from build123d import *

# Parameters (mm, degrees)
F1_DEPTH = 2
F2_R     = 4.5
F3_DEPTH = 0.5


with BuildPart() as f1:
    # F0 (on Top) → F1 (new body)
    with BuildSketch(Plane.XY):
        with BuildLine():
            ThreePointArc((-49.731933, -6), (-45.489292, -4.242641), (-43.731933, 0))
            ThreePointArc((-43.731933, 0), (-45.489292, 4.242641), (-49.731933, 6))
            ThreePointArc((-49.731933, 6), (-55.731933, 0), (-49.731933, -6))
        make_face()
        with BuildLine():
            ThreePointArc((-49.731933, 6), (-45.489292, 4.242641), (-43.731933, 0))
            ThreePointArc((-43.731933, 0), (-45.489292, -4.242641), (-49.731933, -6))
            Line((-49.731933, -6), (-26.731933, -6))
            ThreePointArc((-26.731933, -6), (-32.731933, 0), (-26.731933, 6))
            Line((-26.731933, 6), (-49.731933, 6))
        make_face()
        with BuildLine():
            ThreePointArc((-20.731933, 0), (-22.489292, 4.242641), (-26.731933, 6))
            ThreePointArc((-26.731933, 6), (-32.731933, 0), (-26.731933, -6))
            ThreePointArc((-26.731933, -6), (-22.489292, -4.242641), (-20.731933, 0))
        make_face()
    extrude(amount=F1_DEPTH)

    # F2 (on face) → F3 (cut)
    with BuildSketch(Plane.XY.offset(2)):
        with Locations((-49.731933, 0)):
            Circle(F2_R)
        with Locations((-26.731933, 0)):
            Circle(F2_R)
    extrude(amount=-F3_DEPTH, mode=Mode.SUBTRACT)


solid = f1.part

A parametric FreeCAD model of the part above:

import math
import FreeCAD as App
import Part
import Sketcher
from FreeCAD import Vector

doc = App.newDocument("Part")
params = doc.addObject("Spreadsheet::Sheet", "Params")
for row, (alias, value) in enumerate([
    ("sketch1_radius", "6 mm"),
    ("sketch1_width", "23 mm"),
    ("pad1_length", "2 mm"),
    ("sketch2_diameter", "9 mm"),
    ("pocket1_length", "0.5 mm"),
], start=1):
    params.set(f"A{row}", alias)
    params.set(f"B{row}", "=" + value)
    params.setAlias(f"B{row}", alias)

body = doc.addObject("PartDesign::Body", "Body")

# Sketch on XY plane
sketch1 = body.newObject("Sketcher::SketchObject", "Sketch")
sketch1.AttachmentSupport = (doc.getObject("XY_Plane"), [""])
sketch1.MapMode = "FlatFace"
sketch1.addGeometry(Part.ArcOfCircle(Part.Circle(Vector(-49.731933, 0, 0), Vector(0, 0, 1), 6), math.radians(90), math.radians(270)), False)
sketch1.addGeometry(Part.LineSegment(Vector(-49.731933, -6, 0), Vector(-26.731933, -6, 0)), False)
sketch1.addGeometry(Part.ArcOfCircle(Part.Circle(Vector(-26.731932, -0.000001, 0), Vector(0, 0, 1), 5.999999), math.radians(-90.00001), math.radians(0.00001)), False)
sketch1.addGeometry(Part.ArcOfCircle(Part.Circle(Vector(-26.731932, 0.000001, 0), Vector(0, 0, 1), 5.999999), math.radians(-0.00001), math.radians(90.00001)), False)
sketch1.addGeometry(Part.LineSegment(Vector(-26.731933, 6, 0), Vector(-49.731933, 6, 0)), False)
sketch1.addConstraint(Sketcher.Constraint("Tangent", 0, 2, 1, 1))
sketch1.addConstraint(Sketcher.Constraint("Tangent", 1, 2, 2, 1))
sketch1.addConstraint(Sketcher.Constraint("Tangent", 2, 2, 3, 1))
sketch1.addConstraint(Sketcher.Constraint("Tangent", 3, 2, 4, 1))
sketch1.addConstraint(Sketcher.Constraint("Tangent", 4, 2, 0, 1))
sketch1.addConstraint(Sketcher.Constraint("Horizontal", 1))
sketch1.addConstraint(Sketcher.Constraint("Horizontal", 4))
sketch1.addConstraint(Sketcher.Constraint("Equal", 0, 2))
sketch1.addConstraint(Sketcher.Constraint("PointOnObject", 0, 3, -1))
sketch1.addConstraint(Sketcher.Constraint("PointOnObject", 2, 2, -1))
sketch1.addConstraint(Sketcher.Constraint("Radius", 0, 6.0))
sketch1.addConstraint(Sketcher.Constraint("DistanceX", 1, 1, 1, 2, 23.0))
sketch1.addConstraint(Sketcher.Constraint("DistanceX", 2, 3, -1, 1, 26.731932))
sketch1.setExpression("Constraints[10]", "Params.sketch1_radius")
sketch1.setExpression("Constraints[11]", "Params.sketch1_width")
pad1 = body.newObject("PartDesign::Pad", "Pad")
pad1.Profile = sketch1
pad1.setExpression("Length", "Params.pad1_length")

# Sketch on XY plane
sketch2 = body.newObject("Sketcher::SketchObject", "Sketch001")
sketch2.AttachmentSupport = (doc.getObject("XY_Plane"), [""])
sketch2.MapMode = "FlatFace"
sketch2.AttachmentOffset = App.Placement(Vector(0, 0, 2), App.Rotation())
sketch2.addGeometry(Part.Circle(Vector(-49.731933, 0, 0), Vector(0, 0, 1), 4.5), False)
sketch2.addGeometry(Part.Circle(Vector(-26.731933, 0, 0), Vector(0, 0, 1), 4.5), False)
sketch2.addConstraint(Sketcher.Constraint("Equal", 0, 1))
sketch2.addConstraint(Sketcher.Constraint("PointOnObject", 0, 3, -1))
sketch2.addConstraint(Sketcher.Constraint("PointOnObject", 1, 3, -1))
sketch2.addConstraint(Sketcher.Constraint("Diameter", 0, 9.0))
sketch2.addConstraint(Sketcher.Constraint("DistanceX", 0, 3, 1, 3, 23.0))
sketch2.addConstraint(Sketcher.Constraint("DistanceX", 0, 3, -1, 1, 49.731933))
sketch2.setExpression("Constraints[3]", "Params.sketch2_diameter")
pocket1 = body.newObject("PartDesign::Pocket", "Pocket")
pocket1.Profile = sketch2
pocket1.setExpression("Length", "Params.pocket1_length")

doc.recompute()
